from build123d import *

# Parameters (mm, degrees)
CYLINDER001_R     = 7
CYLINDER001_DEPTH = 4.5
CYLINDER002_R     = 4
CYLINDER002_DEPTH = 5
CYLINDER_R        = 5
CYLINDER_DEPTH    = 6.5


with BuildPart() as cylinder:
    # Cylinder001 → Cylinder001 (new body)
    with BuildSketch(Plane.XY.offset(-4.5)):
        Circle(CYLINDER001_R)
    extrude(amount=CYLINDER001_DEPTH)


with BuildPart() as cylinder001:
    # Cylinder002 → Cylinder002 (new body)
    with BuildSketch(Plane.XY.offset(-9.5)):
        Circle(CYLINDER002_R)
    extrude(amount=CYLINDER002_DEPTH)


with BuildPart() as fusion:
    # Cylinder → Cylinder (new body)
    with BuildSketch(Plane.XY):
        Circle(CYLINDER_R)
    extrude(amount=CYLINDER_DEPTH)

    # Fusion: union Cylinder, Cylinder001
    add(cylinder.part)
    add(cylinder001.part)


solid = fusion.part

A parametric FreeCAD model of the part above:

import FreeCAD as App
import Part
import Sketcher
from FreeCAD import Vector

doc = App.newDocument("Part")
params = doc.addObject("Spreadsheet::Sheet", "Params")
for row, (alias, value) in enumerate([
    ("sketch1_diameter", "14 mm"),
    ("pad1_length", "4.5 mm"),
    ("sketch2_diameter", "8 mm"),
    ("pad2_length", "5 mm"),
    ("sketch3_diameter", "10 mm"),
    ("pad3_length", "6.5 mm"),
], start=1):
    params.set(f"A{row}", alias)
    params.set(f"B{row}", "=" + value)
    params.setAlias(f"B{row}", alias)

body = doc.addObject("PartDesign::Body", "Body")

# Sketch on XY plane
sketch1 = body.newObject("Sketcher::SketchObject", "Sketch")
sketch1.AttachmentSupport = (doc.getObject("XY_Plane"), [""])
sketch1.MapMode = "FlatFace"
sketch1.AttachmentOffset = App.Placement(Vector(0, 0, -4.5), App.Rotation())
sketch1.addGeometry(Part.Circle(Vector(0, 0, 0), Vector(0, 0, 1), 7), False)
sketch1.addConstraint([
    Sketcher.Constraint("Coincident", 0, 3, -1, 1),
    Sketcher.Constraint("Diameter", 0, 14.0),
])
sketch1.setExpression("Constraints[1]", "Params.sketch1_diameter")
pad1 = body.newObject("PartDesign::Pad", "Pad")
pad1.Profile = sketch1
pad1.setExpression("Length", "Params.pad1_length")
body2 = doc.addObject("PartDesign::Body", "Body001")

# Sketch on XY plane
sketch2 = body2.newObject("Sketcher::SketchObject", "Sketch001")
sketch2.AttachmentSupport = (doc.getObject("XY_Plane001"), [""])
sketch2.MapMode = "FlatFace"
sketch2.AttachmentOffset = App.Placement(Vector(0, 0, -9.5), App.Rotation())
sketch2.addGeometry(Part.Circle(Vector(0, 0, 0), Vector(0, 0, 1), 4), False)
sketch2.addConstraint([
    Sketcher.Constraint("Coincident", 0, 3, -1, 1),
    Sketcher.Constraint("Diameter", 0, 8.0),
])
sketch2.setExpression("Constraints[1]", "Params.sketch2_diameter")
pad2 = body2.newObject("PartDesign::Pad", "Pad001")
pad2.Profile = sketch2
pad2.setExpression("Length", "Params.pad2_length")
body3 = doc.addObject("PartDesign::Body", "Body002")

# Sketch on XY plane
sketch3 = body3.newObject("Sketcher::SketchObject", "Sketch002")
sketch3.AttachmentSupport = (doc.getObject("XY_Plane002"), [""])
sketch3.MapMode = "FlatFace"
sketch3.addGeometry(Part.Circle(Vector(0, 0, 0), Vector(0, 0, 1), 5), False)
sketch3.addConstraint([
    Sketcher.Constraint("Coincident", 0, 3, -1, 1),
    Sketcher.Constraint("Diameter", 0, 10.0),
])
sketch3.setExpression("Constraints[1]", "Params.sketch3_diameter")
pad3 = body3.newObject("PartDesign::Pad", "Pad002")
pad3.Profile = sketch3
pad3.setExpression("Length", "Params.pad3_length")
doc.recompute()

boolean = body3.newObject("PartDesign::Boolean", "Boolean")
boolean.Type = "Fuse"
boolean.addObjects([body])
doc.recompute()

boolean2 = body3.newObject("PartDesign::Boolean", "Boolean001")
boolean2.Type = "Fuse"
boolean2.addObjects([body2])

doc.recompute()
